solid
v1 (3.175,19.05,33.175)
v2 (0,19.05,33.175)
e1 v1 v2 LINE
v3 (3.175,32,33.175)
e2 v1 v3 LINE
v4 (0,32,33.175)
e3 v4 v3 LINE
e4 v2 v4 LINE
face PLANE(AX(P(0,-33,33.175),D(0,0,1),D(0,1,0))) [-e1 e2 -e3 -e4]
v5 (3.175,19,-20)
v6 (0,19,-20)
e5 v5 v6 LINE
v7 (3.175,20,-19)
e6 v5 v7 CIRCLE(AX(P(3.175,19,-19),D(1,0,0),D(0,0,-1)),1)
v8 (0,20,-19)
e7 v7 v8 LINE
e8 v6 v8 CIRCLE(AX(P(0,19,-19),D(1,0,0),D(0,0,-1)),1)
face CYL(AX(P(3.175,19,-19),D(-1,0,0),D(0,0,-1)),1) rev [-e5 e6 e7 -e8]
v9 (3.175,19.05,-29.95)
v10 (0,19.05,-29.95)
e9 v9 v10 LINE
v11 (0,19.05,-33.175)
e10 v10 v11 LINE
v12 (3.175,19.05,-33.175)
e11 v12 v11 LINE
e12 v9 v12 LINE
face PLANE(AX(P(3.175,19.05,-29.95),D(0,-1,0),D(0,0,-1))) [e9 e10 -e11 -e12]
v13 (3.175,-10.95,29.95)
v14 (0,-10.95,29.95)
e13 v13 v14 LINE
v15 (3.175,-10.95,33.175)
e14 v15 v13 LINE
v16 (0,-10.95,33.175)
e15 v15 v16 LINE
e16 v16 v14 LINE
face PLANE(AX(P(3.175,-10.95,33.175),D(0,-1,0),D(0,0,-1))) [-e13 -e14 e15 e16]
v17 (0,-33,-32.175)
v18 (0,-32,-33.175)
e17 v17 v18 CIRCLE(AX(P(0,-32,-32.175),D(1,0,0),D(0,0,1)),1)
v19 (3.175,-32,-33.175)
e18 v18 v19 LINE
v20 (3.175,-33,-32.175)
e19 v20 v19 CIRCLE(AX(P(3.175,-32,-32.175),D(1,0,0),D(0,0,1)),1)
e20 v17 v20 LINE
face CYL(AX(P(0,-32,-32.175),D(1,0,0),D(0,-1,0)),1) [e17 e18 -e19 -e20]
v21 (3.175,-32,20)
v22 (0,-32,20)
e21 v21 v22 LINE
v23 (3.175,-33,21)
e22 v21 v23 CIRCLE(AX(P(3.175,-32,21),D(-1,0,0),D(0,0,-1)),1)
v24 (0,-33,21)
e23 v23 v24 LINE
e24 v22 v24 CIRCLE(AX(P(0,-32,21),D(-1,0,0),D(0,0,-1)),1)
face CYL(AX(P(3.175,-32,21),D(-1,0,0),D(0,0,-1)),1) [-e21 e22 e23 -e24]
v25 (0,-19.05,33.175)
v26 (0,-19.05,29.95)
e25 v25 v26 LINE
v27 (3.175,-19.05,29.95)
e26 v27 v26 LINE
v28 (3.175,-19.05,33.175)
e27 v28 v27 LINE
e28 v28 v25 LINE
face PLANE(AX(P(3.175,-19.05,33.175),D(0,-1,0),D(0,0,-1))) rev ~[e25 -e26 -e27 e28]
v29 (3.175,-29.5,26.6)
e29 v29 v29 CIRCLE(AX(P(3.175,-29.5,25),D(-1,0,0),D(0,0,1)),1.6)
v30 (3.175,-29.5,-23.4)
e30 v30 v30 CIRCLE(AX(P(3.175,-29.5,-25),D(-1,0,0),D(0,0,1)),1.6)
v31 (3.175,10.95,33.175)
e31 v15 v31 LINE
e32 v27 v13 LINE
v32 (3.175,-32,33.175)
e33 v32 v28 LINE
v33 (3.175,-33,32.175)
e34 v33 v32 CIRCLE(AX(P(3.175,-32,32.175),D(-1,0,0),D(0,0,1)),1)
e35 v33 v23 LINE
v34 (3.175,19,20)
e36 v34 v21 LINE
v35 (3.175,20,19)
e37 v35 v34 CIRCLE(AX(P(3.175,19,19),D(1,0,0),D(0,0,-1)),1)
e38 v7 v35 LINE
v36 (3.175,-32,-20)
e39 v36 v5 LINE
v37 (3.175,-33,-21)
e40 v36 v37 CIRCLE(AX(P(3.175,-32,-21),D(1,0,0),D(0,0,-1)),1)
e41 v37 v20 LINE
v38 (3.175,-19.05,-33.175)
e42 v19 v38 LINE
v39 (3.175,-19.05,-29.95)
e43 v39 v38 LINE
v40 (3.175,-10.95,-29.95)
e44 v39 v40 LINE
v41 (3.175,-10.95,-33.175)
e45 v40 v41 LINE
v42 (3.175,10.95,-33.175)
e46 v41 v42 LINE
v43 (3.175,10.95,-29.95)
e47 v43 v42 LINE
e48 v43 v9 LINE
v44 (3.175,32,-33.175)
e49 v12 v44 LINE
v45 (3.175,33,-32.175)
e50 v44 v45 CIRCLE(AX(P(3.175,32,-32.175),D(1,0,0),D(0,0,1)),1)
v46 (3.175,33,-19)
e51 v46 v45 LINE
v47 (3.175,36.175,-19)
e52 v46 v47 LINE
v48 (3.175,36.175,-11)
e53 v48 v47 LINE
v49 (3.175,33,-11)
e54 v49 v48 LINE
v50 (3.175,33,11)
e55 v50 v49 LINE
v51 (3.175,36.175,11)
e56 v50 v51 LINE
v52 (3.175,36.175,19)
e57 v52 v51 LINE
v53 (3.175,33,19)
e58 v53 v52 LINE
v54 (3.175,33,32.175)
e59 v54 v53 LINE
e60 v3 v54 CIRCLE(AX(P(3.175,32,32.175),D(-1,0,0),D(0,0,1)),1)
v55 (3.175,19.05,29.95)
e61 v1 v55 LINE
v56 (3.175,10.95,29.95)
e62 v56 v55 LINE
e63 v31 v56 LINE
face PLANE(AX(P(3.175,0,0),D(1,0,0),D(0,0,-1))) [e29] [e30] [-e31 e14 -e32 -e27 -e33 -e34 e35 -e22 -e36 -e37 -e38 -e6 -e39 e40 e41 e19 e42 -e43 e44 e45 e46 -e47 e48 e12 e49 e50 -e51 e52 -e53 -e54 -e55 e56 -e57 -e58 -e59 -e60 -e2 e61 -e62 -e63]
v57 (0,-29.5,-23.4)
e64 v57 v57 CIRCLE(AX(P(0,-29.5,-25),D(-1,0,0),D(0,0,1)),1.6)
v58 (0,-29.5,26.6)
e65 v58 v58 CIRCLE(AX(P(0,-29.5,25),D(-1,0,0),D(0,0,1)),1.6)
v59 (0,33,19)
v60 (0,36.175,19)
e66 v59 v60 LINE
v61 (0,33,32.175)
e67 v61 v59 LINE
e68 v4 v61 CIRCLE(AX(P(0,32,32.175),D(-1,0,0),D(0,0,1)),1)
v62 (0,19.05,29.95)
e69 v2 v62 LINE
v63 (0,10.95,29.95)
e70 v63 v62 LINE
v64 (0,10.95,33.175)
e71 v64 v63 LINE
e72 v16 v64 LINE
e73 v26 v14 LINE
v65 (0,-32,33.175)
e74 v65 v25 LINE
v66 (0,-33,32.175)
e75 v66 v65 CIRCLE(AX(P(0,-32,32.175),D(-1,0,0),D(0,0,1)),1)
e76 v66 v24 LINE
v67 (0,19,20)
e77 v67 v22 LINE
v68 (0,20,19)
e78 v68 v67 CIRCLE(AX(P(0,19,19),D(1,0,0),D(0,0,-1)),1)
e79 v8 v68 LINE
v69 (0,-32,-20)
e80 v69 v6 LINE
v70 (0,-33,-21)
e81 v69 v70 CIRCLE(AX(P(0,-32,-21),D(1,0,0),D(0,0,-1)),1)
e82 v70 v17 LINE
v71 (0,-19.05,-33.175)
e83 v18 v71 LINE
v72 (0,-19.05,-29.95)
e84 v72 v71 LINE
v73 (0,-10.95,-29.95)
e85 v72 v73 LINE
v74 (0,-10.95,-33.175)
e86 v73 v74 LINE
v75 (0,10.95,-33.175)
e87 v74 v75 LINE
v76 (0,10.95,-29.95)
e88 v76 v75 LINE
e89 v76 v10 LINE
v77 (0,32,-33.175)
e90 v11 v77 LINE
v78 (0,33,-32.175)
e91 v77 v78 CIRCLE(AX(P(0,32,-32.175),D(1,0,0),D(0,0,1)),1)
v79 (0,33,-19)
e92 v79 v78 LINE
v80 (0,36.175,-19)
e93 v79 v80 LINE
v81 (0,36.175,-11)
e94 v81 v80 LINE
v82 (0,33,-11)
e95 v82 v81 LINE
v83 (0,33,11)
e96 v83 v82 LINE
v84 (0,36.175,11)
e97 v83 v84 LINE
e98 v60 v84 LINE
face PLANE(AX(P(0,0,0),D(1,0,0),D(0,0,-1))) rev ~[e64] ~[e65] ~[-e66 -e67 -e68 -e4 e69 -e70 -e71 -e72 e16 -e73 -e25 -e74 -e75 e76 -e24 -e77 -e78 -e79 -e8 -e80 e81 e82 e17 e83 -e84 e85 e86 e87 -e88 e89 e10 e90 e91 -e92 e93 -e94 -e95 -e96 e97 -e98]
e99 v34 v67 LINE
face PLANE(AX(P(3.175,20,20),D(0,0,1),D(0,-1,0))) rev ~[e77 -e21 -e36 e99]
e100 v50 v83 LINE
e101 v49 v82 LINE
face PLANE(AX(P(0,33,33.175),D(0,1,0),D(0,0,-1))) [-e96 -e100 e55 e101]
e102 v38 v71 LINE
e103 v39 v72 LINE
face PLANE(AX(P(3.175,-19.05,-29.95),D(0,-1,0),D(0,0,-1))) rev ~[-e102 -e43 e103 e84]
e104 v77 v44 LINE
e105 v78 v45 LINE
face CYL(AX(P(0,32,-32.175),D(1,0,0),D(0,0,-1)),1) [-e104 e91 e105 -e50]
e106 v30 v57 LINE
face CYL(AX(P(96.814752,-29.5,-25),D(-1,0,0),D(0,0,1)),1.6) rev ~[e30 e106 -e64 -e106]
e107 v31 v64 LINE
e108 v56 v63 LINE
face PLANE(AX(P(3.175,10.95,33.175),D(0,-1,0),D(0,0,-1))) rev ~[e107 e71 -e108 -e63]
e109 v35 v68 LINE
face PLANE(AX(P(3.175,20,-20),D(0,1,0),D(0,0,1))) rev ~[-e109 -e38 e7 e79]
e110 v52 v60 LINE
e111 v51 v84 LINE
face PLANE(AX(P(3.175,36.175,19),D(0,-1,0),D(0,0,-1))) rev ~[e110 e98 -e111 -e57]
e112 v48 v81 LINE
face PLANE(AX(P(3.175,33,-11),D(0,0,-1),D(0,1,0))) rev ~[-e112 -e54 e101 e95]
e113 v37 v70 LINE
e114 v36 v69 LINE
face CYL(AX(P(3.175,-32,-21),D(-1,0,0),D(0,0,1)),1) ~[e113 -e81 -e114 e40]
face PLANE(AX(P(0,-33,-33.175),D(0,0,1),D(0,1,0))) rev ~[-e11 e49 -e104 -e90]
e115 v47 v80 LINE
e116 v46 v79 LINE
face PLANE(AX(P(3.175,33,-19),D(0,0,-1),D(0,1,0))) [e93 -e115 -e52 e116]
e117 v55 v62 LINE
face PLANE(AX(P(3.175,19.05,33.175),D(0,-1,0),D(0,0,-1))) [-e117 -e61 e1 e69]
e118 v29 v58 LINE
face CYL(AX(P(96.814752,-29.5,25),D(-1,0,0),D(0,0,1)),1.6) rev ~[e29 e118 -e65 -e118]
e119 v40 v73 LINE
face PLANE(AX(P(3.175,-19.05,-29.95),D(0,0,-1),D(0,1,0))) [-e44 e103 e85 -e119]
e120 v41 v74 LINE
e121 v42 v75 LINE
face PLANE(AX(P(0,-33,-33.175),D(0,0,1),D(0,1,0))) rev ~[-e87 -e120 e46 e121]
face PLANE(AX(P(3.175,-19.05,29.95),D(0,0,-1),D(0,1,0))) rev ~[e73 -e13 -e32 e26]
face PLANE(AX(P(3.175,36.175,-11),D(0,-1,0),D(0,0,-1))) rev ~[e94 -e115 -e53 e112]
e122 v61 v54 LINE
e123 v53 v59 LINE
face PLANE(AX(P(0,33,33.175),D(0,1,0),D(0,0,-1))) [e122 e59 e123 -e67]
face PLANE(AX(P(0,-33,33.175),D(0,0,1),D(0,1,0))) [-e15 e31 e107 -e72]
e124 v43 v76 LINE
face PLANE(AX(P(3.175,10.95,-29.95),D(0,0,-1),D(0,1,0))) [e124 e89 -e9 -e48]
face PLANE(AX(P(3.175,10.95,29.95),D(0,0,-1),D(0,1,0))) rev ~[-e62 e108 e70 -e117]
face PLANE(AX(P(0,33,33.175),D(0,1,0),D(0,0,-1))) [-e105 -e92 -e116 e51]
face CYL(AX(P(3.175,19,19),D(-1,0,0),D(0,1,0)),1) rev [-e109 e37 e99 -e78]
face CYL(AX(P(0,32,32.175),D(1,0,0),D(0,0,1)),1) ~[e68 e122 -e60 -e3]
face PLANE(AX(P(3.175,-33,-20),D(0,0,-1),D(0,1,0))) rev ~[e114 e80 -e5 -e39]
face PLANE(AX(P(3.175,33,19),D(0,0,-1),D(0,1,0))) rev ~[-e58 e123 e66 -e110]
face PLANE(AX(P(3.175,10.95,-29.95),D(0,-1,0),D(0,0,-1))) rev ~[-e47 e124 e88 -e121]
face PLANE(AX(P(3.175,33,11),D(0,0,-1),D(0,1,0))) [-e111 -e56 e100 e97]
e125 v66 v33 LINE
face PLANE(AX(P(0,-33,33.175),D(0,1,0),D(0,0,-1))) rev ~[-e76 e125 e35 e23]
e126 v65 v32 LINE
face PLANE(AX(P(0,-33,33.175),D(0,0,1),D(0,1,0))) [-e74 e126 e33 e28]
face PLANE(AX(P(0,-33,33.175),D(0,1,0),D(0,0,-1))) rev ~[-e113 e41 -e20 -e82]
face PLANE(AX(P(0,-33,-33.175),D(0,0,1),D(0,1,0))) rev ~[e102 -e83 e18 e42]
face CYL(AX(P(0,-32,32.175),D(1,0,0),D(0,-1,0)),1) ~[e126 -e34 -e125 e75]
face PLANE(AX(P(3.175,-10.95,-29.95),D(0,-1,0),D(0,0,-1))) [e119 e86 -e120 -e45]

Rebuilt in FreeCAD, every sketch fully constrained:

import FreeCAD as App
import Part
import Sketcher
from FreeCAD import Vector


def edges_at(feature, points):
    """Names of the edges that pass closest to the given points."""
    edges = feature.Shape.Edges
    near = lambda p: min(range(len(edges)), key=lambda i: edges[i].distToShape(Part.Vertex(*p))[0])
    return sorted({f"Edge{near(p) + 1}" for p in points})


def add_polygon(sketch, points):
    """Adds a closed chain of lines whose ends are joined by coincident constraints."""
    first, n = sketch.GeometryCount, len(points)
    for a, b in zip(points, points[1:] + points[:1]):
        sketch.addGeometry(Part.LineSegment(App.Vector(*a, 0), App.Vector(*b, 0)), False)
    for i in range(n):
        sketch.addConstraint(Sketcher.Constraint("Coincident", first + i, 2, first + (i + 1) % n, 1))

doc = App.newDocument("Part")
params = doc.addObject("Spreadsheet::Sheet", "Params")
for row, (alias, value) in enumerate([
    ("sketch1_width", "66 mm"),
    ("sketch1_height", "66.35 mm"),
    ("pad1_length", "3.175 mm"),
    ("sketch2_width", "53 mm"),
    ("sketch2_height", "40 mm"),
    ("sketch3_diameter", "3.2 mm"),
    ("hole_diameter", "3.2 mm"),
    ("sketch4_width", "8.1 mm"),
    ("sketch5_height", "8 mm"),
    ("pad2_length", "3.175 mm"),
    ("fillet_radius", "1 mm"),
    ("fillet2_radius", "1 mm"),
], start=1):
    params.set(f"A{row}", alias)
    params.set(f"B{row}", "=" + value)
    params.setAlias(f"B{row}", alias)

body = doc.addObject("PartDesign::Body", "Body")

# Sketch on YZ plane
sketch1 = doc.addObject("Sketcher::SketchObject", "Sketch")
body.addObject(sketch1)
sketch1.AttachmentSupport = (doc.YZ_Plane, [""])
sketch1.MapMode = "FlatFace"
add_polygon(sketch1, [(33, 33.175), (-33, 33.175), (-33, -33.175), (33, -33.175)])  # lines 0-3
sketch1.addConstraint([
    Sketcher.Constraint("Horizontal", 0),
    Sketcher.Constraint("Vertical", 1),
    Sketcher.Constraint("Horizontal", 2),
    Sketcher.Constraint("Vertical", 3),
    Sketcher.Constraint("Symmetric", 0, 2, 2, 2, -1, 1),
    Sketcher.Constraint("DistanceX", 0, 2, 0, 1, 66.0),
    Sketcher.Constraint("DistanceY", 1, 2, 1, 1, 66.35),
])
sketch1.setExpression("Constraints[9]", "Params.sketch1_width")
sketch1.setExpression("Constraints[10]", "Params.sketch1_height")
pad1 = doc.addObject("PartDesign::Pad", "Pad")
body.addObject(pad1)
pad1.Profile = sketch1
pad1.setExpression("Length", "Params.pad1_length")

# Sketch on YZ plane
sketch2 = doc.addObject("Sketcher::SketchObject", "Sketch001")
body.addObject(sketch2)
sketch2.AttachmentSupport = (doc.YZ_Plane, [""])
sketch2.MapMode = "FlatFace"
sketch2.AttachmentOffset = App.Placement(Vector(0, 0, 3.175), App.Rotation())
add_polygon(sketch2, [(-33, 20), (-33, -20), (20, -20), (20, 20)])  # lines 0-3
sketch2.addConstraint([
    Sketcher.Constraint("Vertical", 0),
    Sketcher.Constraint("Horizontal", 1),
    Sketcher.Constraint("Vertical", 2),
    Sketcher.Constraint("Horizontal", 3),
    Sketcher.Constraint("DistanceX", 1, 1, 1, 2, 53.0),
    Sketcher.Constraint("DistanceY", 0, 2, 0, 1, 40.0),
    Sketcher.Constraint("DistanceX", 0, 2, -1, 1, 33.0),
    Sketcher.Constraint("DistanceY", 0, 2, -1, 1, 20.0),
])
sketch2.setExpression("Constraints[8]", "Params.sketch2_width")
sketch2.setExpression("Constraints[9]", "Params.sketch2_height")
pocket1 = doc.addObject("PartDesign::Pocket", "Pocket")
body.addObject(pocket1)
pocket1.Profile = sketch2
pocket1.Type = "ThroughAll"

# Sketch on YZ plane
sketch3 = doc.addObject("Sketcher::SketchObject", "Sketch002")
body.addObject(sketch3)
sketch3.AttachmentSupport = (doc.YZ_Plane, [""])
sketch3.MapMode = "FlatFace"
sketch3.AttachmentOffset = App.Placement(Vector(0, 0, 3.175), App.Rotation())
sketch3.addGeometry([
    Part.Circle(Vector(-29.5, 25, 0), Vector(0, 0, 1), 1.6),
    Part.Circle(Vector(-29.5, -25, 0), Vector(0, 0, 1), 1.6),
], False)
sketch3.addConstraint([
    Sketcher.Constraint("Equal", 0, 1),
    Sketcher.Constraint("Symmetric", 0, 3, 1, 3, -1),
    Sketcher.Constraint("Diameter", 0, 3.2),
    Sketcher.Constraint("DistanceY", -1, 1, 0, 3, 25.0),
    Sketcher.Constraint("DistanceX", 0, 3, -1, 1, 29.5),
])
sketch3.setExpression("Constraints[2]", "Params.sketch3_diameter")
doc.recompute()
hole = doc.addObject("PartDesign::Hole", "Hole")
body.addObject(hole)
hole.Profile = sketch3
hole.ThreadType = "None"
hole.setExpression("Diameter", "Params.hole_diameter")
hole.DepthType = "ThroughAll"

# Sketch on YZ plane
sketch4 = doc.addObject("Sketcher::SketchObject", "Sketch003")
body.addObject(sketch4)
sketch4.AttachmentSupport = (doc.YZ_Plane, [""])
sketch4.MapMode = "FlatFace"
sketch4.AttachmentOffset = App.Placement(Vector(0, 0, 3.175), App.Rotation())
add_polygon(sketch4, [(19.05, 33.175), (10.95, 33.175), (10.95, 29.95), (19.05, 29.95)])  # lines 0-3
add_polygon(sketch4, [(-10.95, 33.175), (-19.05, 33.175), (-19.05, 29.95), (-10.95, 29.95)])  # lines 4-7
add_polygon(sketch4, [(-10.95, -29.95), (-19.05, -29.95), (-19.05, -33.175), (-10.95, -33.175)])  # lines 8-11
add_polygon(sketch4, [(19.05, -29.95), (10.95, -29.95), (10.95, -33.175), (19.05, -33.175)])  # lines 12-15
sketch4.addConstraint([
    Sketcher.Constraint("Horizontal", 0),
    Sketcher.Constraint("Vertical", 1),
    Sketcher.Constraint("Horizontal", 2),
    Sketcher.Constraint("Vertical", 3),
    Sketcher.Constraint("Horizontal", 4),
    Sketcher.Constraint("Vertical", 5),
    Sketcher.Constraint("Horizontal", 6),
    Sketcher.Constraint("Vertical", 7),
    Sketcher.Constraint("Horizontal", 8),
    Sketcher.Constraint("Vertical", 9),
    Sketcher.Constraint("Horizontal", 10),
    Sketcher.Constraint("Vertical", 11),
    Sketcher.Constraint("Horizontal", 12),
    Sketcher.Constraint("Vertical", 13),
    Sketcher.Constraint("Horizontal", 14),
    Sketcher.Constraint("Vertical", 15),
    Sketcher.Constraint("Symmetric", 2, 2, 8, 2, -1, 1),
    Sketcher.Constraint("Symmetric", 0, 2, 10, 2, -1, 1),
    Sketcher.Constraint("Symmetric", 6, 2, 12, 2, -1, 1),
    Sketcher.Constraint("Symmetric", 4, 2, 14, 2, -1, 1),
    Sketcher.Constraint("Symmetric", 3, 2, 4, 2, -2),
    Sketcher.Constraint("Symmetric", 1, 2, 6, 2, -2),
    Sketcher.Constraint("DistanceX", 0, 2, 0, 1, 8.1),
    Sketcher.Constraint("DistanceX", 4, 2, 0, 2, 30.0),
    Sketcher.Constraint("DistanceY", 8, 2, 5, 2, 59.9),
    Sketcher.Constraint("DistanceY", 1, 2, 1, 1, 3.225),
])
sketch4.setExpression("Constraints[38]", "Params.sketch4_width")
pocket2 = doc.addObject("PartDesign::Pocket", "Pocket001")
body.addObject(pocket2)
pocket2.Profile = sketch4
pocket2.Type = "ThroughAll"

# Sketch on YZ plane
sketch5 = doc.addObject("Sketcher::SketchObject", "Sketch004")
body.addObject(sketch5)
sketch5.AttachmentSupport = (doc.YZ_Plane, [""])
sketch5.MapMode = "FlatFace"
sketch5.AttachmentOffset = App.Placement(Vector(0, 0, 3.175), App.Rotation())
add_polygon(sketch5, [(36.175, 19), (33, 19), (33, 11), (36.175, 11)])  # lines 0-3
add_polygon(sketch5, [(36.175, -11), (33, -11), (33, -19), (36.175, -19)])  # lines 4-7
sketch5.addConstraint([
    Sketcher.Constraint("Horizontal", 0),
    Sketcher.Constraint("Vertical", 1),
    Sketcher.Constraint("Horizontal", 2),
    Sketcher.Constraint("Vertical", 3),
    Sketcher.Constraint("Horizontal", 4),
    Sketcher.Constraint("Vertical", 5),
    Sketcher.Constraint("Horizontal", 6),
    Sketcher.Constraint("Vertical", 7),
    Sketcher.Constraint("Symmetric", 1, 2, 4, 2, -1),
    Sketcher.Constraint("Symmetric", 3, 2, 6, 2, -1),
    Sketcher.Constraint("DistanceY", 1, 2, 1, 1, 8.0),
    Sketcher.Constraint("DistanceX", -1, 1, 0, 2, 33.0),
    Sketcher.Constraint("DistanceY", -1, 1, 0, 2, 19.0),
    Sketcher.Constraint("DistanceX", 0, 2, 0, 1, 3.175),
])
sketch5.setExpression("Constraints[18]", "Params.sketch5_height")
pad2 = doc.addObject("PartDesign::Pad", "Pad001")
body.addObject(pad2)
pad2.Profile = sketch5
pad2.setExpression("Length", "Params.pad2_length")
pad2.Reversed = True
doc.recompute()

fillet = doc.addObject("PartDesign::Fillet", "Fillet")
body.addObject(fillet)
fillet.Base = (pad2, edges_at(pad2, [(1.587, 20, -20), (1.587, 20, 20)]))
fillet.setExpression("Radius", "Params.fillet_radius")
doc.recompute()

fillet2 = doc.addObject("PartDesign::Fillet", "Fillet001")
body.addObject(fillet2)
fillet2.Base = (fillet, edges_at(fillet, [
    (1.587, -33, -20),
    (1.587, -33, 20),
    (1.587, -33, -33.175),
    (1.587, -33, 33.175),
    (1.587, 33, 33.175),
    (1.587, 33, -33.175),
]))
fillet2.setExpression("Radius", "Params.fillet2_radius")

doc.recompute()
